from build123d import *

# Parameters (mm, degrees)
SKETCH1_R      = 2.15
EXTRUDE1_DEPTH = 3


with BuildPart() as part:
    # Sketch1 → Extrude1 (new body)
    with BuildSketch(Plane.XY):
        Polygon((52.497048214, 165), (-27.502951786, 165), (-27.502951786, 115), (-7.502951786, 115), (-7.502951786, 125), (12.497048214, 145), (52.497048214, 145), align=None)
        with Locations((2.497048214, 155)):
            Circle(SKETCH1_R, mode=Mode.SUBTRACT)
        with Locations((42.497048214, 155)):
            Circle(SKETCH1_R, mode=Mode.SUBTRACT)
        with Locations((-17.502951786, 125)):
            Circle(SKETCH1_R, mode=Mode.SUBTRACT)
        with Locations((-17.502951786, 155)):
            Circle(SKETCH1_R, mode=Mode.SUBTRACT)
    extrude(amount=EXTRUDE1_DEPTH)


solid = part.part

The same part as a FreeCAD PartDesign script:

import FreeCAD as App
import Part
import Sketcher

doc = App.newDocument("Part")
body = doc.addObject("PartDesign::Body", "Body")

# Sketch on XY plane
sketch1 = doc.addObject("Sketcher::SketchObject", "Sketch")
body.addObject(sketch1)
sketch1.AttachmentSupport = (doc.XY_Plane, [""])
sketch1.MapMode = "FlatFace"
sketch1.addGeometry(Part.LineSegment(App.Vector(52.497048, 165, 0), App.Vector(-27.502952, 165, 0)), False)
sketch1.addGeometry(Part.LineSegment(App.Vector(-27.502952, 165, 0), App.Vector(-27.502952, 115, 0)), False)
sketch1.addGeometry(Part.LineSegment(App.Vector(-27.502952, 115, 0), App.Vector(-7.502952, 115, 0)), False)
sketch1.addGeometry(Part.LineSegment(App.Vector(-7.502952, 115, 0), App.Vector(-7.502952, 125, 0)), False)
sketch1.addGeometry(Part.LineSegment(App.Vector(-7.502952, 125, 0), App.Vector(12.497048, 145, 0)), False)
sketch1.addGeometry(Part.LineSegment(App.Vector(12.497048, 145, 0), App.Vector(52.497048, 145, 0)), False)
sketch1.addGeometry(Part.LineSegment(App.Vector(52.497048, 145, 0), App.Vector(52.497048, 165, 0)), False)
sketch1.addGeometry(Part.Circle(App.Vector(-17.502952, 125, 0), App.Vector(0, 0, 1), 2.15), False)
sketch1.addGeometry(Part.Circle(App.Vector(-17.502952, 155, 0), App.Vector(0, 0, 1), 2.15), False)
sketch1.addGeometry(Part.Circle(App.Vector(2.497048, 155, 0), App.Vector(0, 0, 1), 2.15), False)
sketch1.addGeometry(Part.Circle(App.Vector(42.497048, 155, 0), App.Vector(0, 0, 1), 2.15), False)
sketch1.addConstraint(Sketcher.Constraint("Coincident", 0, 2, 1, 1))
sketch1.addConstraint(Sketcher.Constraint("Coincident", 1, 2, 2, 1))
sketch1.addConstraint(Sketcher.Constraint("Coincident", 2, 2, 3, 1))
sketch1.addConstraint(Sketcher.Constraint("Coincident", 3, 2, 4, 1))
sketch1.addConstraint(Sketcher.Constraint("Coincident", 4, 2, 5, 1))
sketch1.addConstraint(Sketcher.Constraint("Coincident", 5, 2, 6, 1))
sketch1.addConstraint(Sketcher.Constraint("Coincident", 6, 2, 0, 1))
sketch1.addConstraint(Sketcher.Constraint("Horizontal", 0))
sketch1.addConstraint(Sketcher.Constraint("Vertical", 1))
sketch1.addConstraint(Sketcher.Constraint("Horizontal", 2))
sketch1.addConstraint(Sketcher.Constraint("Vertical", 3))
sketch1.addConstraint(Sketcher.Constraint("Horizontal", 5))
sketch1.addConstraint(Sketcher.Constraint("Vertical", 6))
sketch1.addConstraint(Sketcher.Constraint("Equal", 7, 8))
sketch1.addConstraint(Sketcher.Constraint("Equal", 8, 9))
sketch1.addConstraint(Sketcher.Constraint("Equal", 9, 10))
sketch1.addConstraint(Sketcher.Constraint("Horizontal", 8, 3, 9, 3))
sketch1.addConstraint(Sketcher.Constraint("Horizontal", 9, 3, 10, 3))
sketch1.addConstraint(Sketcher.Constraint("Horizontal", 7, 3, 3, 2))
sketch1.addConstraint(Sketcher.Constraint("Vertical", 7, 3, 8, 3))
sketch1.addConstraint(Sketcher.Constraint("Equal", 2, 6))
sketch1.addConstraint(Sketcher.Constraint("Diameter", 7, 4.3))
sketch1.addConstraint(Sketcher.Constraint("DistanceX", 0, 2, 0, 1, 80.0))
sketch1.addConstraint(Sketcher.Constraint("DistanceX", 2, 1, 2, 2, 20.0))
sketch1.addConstraint(Sketcher.Constraint("DistanceX", 5, 1, 5, 2, 40.0))
sketch1.addConstraint(Sketcher.Constraint("DistanceY", 1, 2, 1, 1, 50.0))
sketch1.addConstraint(Sketcher.Constraint("DistanceY", 3, 1, 3, 2, 10.0))
sketch1.addConstraint(Sketcher.Constraint("DistanceY", -1, 1, 7, 3, 125.0))
sketch1.addConstraint(Sketcher.Constraint("DistanceY", -1, 1, 8, 3, 155.0))
sketch1.addConstraint(Sketcher.Constraint("DistanceX", 8, 3, 9, 3, 20.0))
sketch1.addConstraint(Sketcher.Constraint("DistanceX", 9, 3, 10, 3, 40.0))
sketch1.addConstraint(Sketcher.Constraint("DistanceX", 0, 2, 8, 3, 10.0))
sketch1.addConstraint(Sketcher.Constraint("DistanceX", 7, 3, -1, 1, 17.502952))
pad1 = doc.addObject("PartDesign::Pad", "Pad")
body.addObject(pad1)
pad1.Profile = sketch1
pad1.Length = 3

doc.recompute()
